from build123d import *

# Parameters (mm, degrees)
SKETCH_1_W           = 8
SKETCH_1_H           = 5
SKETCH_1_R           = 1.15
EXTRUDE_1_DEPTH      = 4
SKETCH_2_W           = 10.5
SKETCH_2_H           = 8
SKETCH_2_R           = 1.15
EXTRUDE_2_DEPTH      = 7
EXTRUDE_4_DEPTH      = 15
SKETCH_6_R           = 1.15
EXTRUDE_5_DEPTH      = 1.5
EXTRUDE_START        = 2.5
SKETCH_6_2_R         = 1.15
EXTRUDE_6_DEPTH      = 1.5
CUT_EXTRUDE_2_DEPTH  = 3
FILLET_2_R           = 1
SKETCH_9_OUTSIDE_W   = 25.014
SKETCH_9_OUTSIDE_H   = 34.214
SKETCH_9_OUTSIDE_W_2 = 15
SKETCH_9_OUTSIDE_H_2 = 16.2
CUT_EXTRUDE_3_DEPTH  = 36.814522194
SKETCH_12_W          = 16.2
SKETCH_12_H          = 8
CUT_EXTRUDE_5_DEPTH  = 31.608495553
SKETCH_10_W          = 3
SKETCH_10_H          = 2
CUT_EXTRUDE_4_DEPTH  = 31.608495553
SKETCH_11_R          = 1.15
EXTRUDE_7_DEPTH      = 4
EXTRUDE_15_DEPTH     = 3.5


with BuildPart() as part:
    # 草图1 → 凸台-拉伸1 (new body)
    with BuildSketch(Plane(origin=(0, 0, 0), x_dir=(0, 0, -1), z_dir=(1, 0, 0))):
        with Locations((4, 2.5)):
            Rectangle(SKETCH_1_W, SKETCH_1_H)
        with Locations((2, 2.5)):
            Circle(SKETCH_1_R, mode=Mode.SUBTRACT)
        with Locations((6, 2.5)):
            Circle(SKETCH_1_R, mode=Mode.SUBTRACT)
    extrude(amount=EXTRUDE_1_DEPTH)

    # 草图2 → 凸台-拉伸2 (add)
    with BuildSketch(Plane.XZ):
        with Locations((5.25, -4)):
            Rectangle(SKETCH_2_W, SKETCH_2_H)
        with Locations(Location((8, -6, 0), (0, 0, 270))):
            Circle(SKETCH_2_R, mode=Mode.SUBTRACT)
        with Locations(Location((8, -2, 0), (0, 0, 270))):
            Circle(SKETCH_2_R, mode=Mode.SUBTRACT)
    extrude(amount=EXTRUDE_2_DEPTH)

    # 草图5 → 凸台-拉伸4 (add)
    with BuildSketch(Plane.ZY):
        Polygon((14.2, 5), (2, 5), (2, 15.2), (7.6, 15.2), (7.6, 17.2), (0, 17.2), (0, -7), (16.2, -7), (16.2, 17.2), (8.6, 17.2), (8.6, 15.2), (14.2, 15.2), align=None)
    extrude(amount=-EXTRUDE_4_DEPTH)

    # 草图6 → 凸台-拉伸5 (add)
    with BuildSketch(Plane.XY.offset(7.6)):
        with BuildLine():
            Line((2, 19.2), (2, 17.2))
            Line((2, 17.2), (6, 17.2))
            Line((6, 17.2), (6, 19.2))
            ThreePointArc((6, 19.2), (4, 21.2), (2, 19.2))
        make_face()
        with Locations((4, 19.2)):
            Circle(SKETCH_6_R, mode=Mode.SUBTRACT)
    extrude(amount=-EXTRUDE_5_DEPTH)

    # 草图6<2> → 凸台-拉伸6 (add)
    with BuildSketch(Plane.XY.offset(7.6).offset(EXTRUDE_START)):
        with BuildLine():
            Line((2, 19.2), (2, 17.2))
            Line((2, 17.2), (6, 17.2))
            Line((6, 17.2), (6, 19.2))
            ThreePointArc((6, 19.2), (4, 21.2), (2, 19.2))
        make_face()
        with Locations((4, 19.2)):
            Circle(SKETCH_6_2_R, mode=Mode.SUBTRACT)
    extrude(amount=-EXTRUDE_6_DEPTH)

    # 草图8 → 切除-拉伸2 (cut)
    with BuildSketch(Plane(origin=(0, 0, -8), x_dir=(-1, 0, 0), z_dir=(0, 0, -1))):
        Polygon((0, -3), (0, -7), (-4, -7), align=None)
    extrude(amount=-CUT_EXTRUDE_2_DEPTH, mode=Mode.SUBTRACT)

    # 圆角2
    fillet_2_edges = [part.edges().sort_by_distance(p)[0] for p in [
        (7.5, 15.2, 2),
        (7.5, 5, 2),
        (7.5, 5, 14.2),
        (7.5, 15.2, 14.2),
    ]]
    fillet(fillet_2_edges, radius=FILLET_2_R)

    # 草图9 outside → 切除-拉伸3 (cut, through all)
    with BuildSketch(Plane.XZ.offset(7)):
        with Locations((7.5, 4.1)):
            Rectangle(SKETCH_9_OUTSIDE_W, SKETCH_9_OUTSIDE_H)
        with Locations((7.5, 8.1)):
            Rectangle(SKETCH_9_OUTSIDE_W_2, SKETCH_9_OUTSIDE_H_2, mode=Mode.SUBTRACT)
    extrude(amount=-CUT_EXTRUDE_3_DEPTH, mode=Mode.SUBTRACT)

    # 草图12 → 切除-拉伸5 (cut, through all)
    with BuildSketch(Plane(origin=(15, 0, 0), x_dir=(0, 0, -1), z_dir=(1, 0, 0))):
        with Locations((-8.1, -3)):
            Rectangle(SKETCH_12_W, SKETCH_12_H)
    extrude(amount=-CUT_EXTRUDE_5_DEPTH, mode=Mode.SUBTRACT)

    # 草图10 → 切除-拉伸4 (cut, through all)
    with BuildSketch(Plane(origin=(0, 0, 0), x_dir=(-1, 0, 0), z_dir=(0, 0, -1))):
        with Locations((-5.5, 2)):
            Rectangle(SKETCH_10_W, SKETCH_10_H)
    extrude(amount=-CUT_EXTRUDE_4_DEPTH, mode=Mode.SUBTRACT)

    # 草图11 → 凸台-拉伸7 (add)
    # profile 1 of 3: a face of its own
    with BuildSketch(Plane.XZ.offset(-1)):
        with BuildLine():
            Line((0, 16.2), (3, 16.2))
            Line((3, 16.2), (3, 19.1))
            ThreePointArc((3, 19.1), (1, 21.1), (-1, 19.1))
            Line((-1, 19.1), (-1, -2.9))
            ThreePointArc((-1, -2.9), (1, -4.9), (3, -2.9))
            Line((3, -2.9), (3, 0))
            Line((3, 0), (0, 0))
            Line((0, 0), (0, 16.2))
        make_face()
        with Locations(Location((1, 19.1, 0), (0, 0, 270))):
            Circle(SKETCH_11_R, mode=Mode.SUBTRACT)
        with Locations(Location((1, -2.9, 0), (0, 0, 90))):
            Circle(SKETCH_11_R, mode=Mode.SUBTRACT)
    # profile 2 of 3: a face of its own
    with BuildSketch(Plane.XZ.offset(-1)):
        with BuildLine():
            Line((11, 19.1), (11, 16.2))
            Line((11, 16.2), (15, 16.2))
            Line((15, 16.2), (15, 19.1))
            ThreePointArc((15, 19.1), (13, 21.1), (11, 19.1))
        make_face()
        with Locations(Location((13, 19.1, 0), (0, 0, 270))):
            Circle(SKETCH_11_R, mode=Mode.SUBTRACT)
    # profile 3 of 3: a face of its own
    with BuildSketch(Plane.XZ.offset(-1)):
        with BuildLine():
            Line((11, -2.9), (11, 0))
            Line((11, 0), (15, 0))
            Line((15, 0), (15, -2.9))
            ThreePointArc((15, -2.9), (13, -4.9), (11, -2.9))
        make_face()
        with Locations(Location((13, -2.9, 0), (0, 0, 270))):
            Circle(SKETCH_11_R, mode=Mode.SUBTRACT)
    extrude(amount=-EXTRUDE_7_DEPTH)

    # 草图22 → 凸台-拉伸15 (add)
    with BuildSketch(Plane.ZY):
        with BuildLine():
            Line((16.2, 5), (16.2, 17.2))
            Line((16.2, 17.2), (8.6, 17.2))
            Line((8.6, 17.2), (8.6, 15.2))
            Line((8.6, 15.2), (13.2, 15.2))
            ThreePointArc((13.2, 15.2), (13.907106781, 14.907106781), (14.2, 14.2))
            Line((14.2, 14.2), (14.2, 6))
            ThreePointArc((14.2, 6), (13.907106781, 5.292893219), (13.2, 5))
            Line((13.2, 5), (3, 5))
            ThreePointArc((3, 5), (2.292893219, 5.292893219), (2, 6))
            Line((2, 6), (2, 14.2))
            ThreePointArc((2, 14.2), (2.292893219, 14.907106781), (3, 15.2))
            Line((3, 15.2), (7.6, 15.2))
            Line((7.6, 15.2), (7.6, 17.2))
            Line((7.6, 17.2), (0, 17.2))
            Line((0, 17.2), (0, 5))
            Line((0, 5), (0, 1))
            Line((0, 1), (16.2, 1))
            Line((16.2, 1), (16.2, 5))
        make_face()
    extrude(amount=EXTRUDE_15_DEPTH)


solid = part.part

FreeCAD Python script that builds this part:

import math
import FreeCAD as App
import Part
import Sketcher
from FreeCAD import Vector
Q = App.Units.Quantity


def edges_at(feature, points):
    """Names of the edges that pass closest to the given points."""
    edges = feature.Shape.Edges
    near = lambda p: min(range(len(edges)), key=lambda i: edges[i].distToShape(Part.Vertex(*p))[0])
    return sorted({f"Edge{near(p) + 1}" for p in points})

doc = App.newDocument("Part")
params = doc.addObject("Spreadsheet::Sheet", "Params")
for row, (alias, value) in enumerate([
    ("sketch1_diameter", "2.3 mm"),
    ("sketch1_width", "5 mm"),
    ("sketch1_height", "8 mm"),
    ("pad1_length", "4 mm"),
    ("sketch2_diameter", "2.3 mm"),
    ("sketch2_height", "8 mm"),
    ("sketch2_width", "10.5 mm"),
    ("pad2_length", "7 mm"),
    ("sketch3_width", "2 mm"),
    ("sketch3_width2", "10.2 mm"),
    ("sketch3_width3", "24.2 mm"),
    ("sketch3_height", "12.2 mm"),
    ("sketch3_height2", "5.6 mm"),
    ("pad3_length", "15 mm"),
    ("sketch4_radius", "2 mm"),
    ("sketch4_diameter", "2.3 mm"),
    ("sketch4_height", "2 mm"),
    ("pad4_length", "1.5 mm"),
    ("sketch5_radius", "2 mm"),
    ("sketch5_diameter", "2.3 mm"),
    ("sketch5_height", "2 mm"),
    ("pad5_length", "1.5 mm"),
    ("sketch6_width", "4 mm"),
    ("pocket1_length", "3 mm"),
    ("fillet_radius", "1 mm"),
    ("sketch7_width", "15 mm"),
    ("sketch7_height", "16.2 mm"),
    ("sketch8_width", "8 mm"),
    ("sketch8_height", "16.2 mm"),
    ("sketch9_width", "3 mm"),
    ("sketch9_height", "2 mm"),
    ("sketch10_radius", "2 mm"),
    ("sketch10_diameter", "2.3 mm"),
    ("sketch10_width", "3 mm"),
    ("sketch10_height", "22 mm"),
    ("sketch10_height2", "2.9 mm"),
    ("pad6_length", "4 mm"),
    ("sketch11_radius", "1 mm"),
    ("sketch11_width", "2 mm"),
    ("sketch11_width2", "8.2 mm"),
    ("sketch11_width3", "16.2 mm"),
    ("sketch11_height", "7.6 mm"),
    ("pad7_length", "3.5 mm"),
], start=1):
    params.set(f"A{row}", alias)
    params.set(f"B{row}", "=" + value)
    params.setAlias(f"B{row}", alias)

body = doc.addObject("PartDesign::Body", "Body")

# Sketch on YZ plane
sketch1 = doc.addObject("Sketcher::SketchObject", "Sketch")
body.addObject(sketch1)
sketch1.AttachmentSupport = (doc.YZ_Plane, [""])
sketch1.MapMode = "FlatFace"
sketch1.addGeometry(Part.LineSegment(Vector(5, 0, 0), Vector(0, 0, 0)), False)
sketch1.addGeometry(Part.LineSegment(Vector(0, 0, 0), Vector(0, -8, 0)), False)
sketch1.addGeometry(Part.LineSegment(Vector(0, -8, 0), Vector(5, -8, 0)), False)
sketch1.addGeometry(Part.LineSegment(Vector(5, -8, 0), Vector(5, 0, 0)), False)
sketch1.addGeometry(Part.Circle(Vector(2.5, -2, 0), Vector(0, 0, 1), 1.1), False)
sketch1.addGeometry(Part.Circle(Vector(2.5, -6, 0), Vector(0, 0, 1), 1.1), False)
sketch1.addConstraint(Sketcher.Constraint("Coincident", 0, 2, 1, 1))
sketch1.addConstraint(Sketcher.Constraint("Coincident", 1, 2, 2, 1))
sketch1.addConstraint(Sketcher.Constraint("Coincident", 2, 2, 3, 1))
sketch1.addConstraint(Sketcher.Constraint("Coincident", 3, 2, 0, 1))
sketch1.addConstraint(Sketcher.Constraint("Horizontal", 0))
sketch1.addConstraint(Sketcher.Constraint("Vertical", 1))
sketch1.addConstraint(Sketcher.Constraint("Horizontal", 2))
sketch1.addConstraint(Sketcher.Constraint("Vertical", 3))
sketch1.addConstraint(Sketcher.Constraint("Coincident", 0, 2, -1, 1))
sketch1.addConstraint(Sketcher.Constraint("Equal", 4, 5))
sketch1.addConstraint(Sketcher.Constraint("Vertical", 4, 3, 5, 3))
sketch1.addConstraint(Sketcher.Constraint("Diameter", 4, Q("2.3 mm")))
sketch1.addConstraint(Sketcher.Constraint("DistanceX", 0, 2, 0, 1, Q("5 mm")))
sketch1.addConstraint(Sketcher.Constraint("DistanceY", 1, 2, 1, 1, Q("8 mm")))
sketch1.addConstraint(Sketcher.Constraint("DistanceY", 4, 3, -1, 1, Q("2 mm")))
sketch1.addConstraint(Sketcher.Constraint("DistanceY", 5, 3, -1, 1, Q("6 mm")))
sketch1.addConstraint(Sketcher.Constraint("DistanceX", -1, 1, 4, 3, Q("2.5 mm")))
sketch1.setExpression("Constraints[11]", "Params.sketch1_diameter")
sketch1.setExpression("Constraints[12]", "Params.sketch1_width")
sketch1.setExpression("Constraints[13]", "Params.sketch1_height")
pad1 = doc.addObject("PartDesign::Pad", "Pad")
body.addObject(pad1)
pad1.Profile = sketch1
pad1.setExpression("Length", "Params.pad1_length")

# Sketch on XZ plane
sketch2 = doc.addObject("Sketcher::SketchObject", "Sketch001")
body.addObject(sketch2)
sketch2.AttachmentSupport = (doc.XZ_Plane, [""])
sketch2.MapMode = "FlatFace"
sketch2.addGeometry(Part.LineSegment(Vector(0, 0, 0), Vector(0, -8, 0)), False)
sketch2.addGeometry(Part.LineSegment(Vector(0, -8, 0), Vector(10.5, -8, 0)), False)
sketch2.addGeometry(Part.LineSegment(Vector(10.5, -8, 0), Vector(10.5, 0, 0)), False)
sketch2.addGeometry(Part.LineSegment(Vector(10.5, 0, 0), Vector(0, 0, 0)), False)
sketch2.addGeometry(Part.Circle(Vector(8, -6, 0), Vector(0, 0, 1), 1.1), False)
sketch2.addGeometry(Part.Circle(Vector(8, -2, 0), Vector(0, 0, 1), 1.1), False)
sketch2.addConstraint(Sketcher.Constraint("Coincident", 0, 2, 1, 1))
sketch2.addConstraint(Sketcher.Constraint("Coincident", 1, 2, 2, 1))
sketch2.addConstraint(Sketcher.Constraint("Coincident", 2, 2, 3, 1))
sketch2.addConstraint(Sketcher.Constraint("Coincident", 3, 2, 0, 1))
sketch2.addConstraint(Sketcher.Constraint("Vertical", 0))
sketch2.addConstraint(Sketcher.Constraint("Horizontal", 1))
sketch2.addConstraint(Sketcher.Constraint("Vertical", 2))
sketch2.addConstraint(Sketcher.Constraint("Horizontal", 3))
sketch2.addConstraint(Sketcher.Constraint("Coincident", 3, 2, -1, 1))
sketch2.addConstraint(Sketcher.Constraint("Equal", 4, 5))
sketch2.addConstraint(Sketcher.Constraint("Vertical", 4, 3, 5, 3))
sketch2.addConstraint(Sketcher.Constraint("Diameter", 4, Q("2.3 mm")))
sketch2.addConstraint(Sketcher.Constraint("DistanceY", 0, 2, 0, 1, Q("8 mm")))
sketch2.addConstraint(Sketcher.Constraint("DistanceX", 1, 1, 1, 2, Q("10.5 mm")))
sketch2.addConstraint(Sketcher.Constraint("DistanceX", -1, 1, 4, 3, Q("8 mm")))
sketch2.addConstraint(Sketcher.Constraint("DistanceY", 4, 3, -1, 1, Q("6 mm")))
sketch2.addConstraint(Sketcher.Constraint("DistanceY", 5, 3, -1, 1, Q("2 mm")))
sketch2.setExpression("Constraints[11]", "Params.sketch2_diameter")
sketch2.setExpression("Constraints[12]", "Params.sketch2_height")
sketch2.setExpression("Constraints[13]", "Params.sketch2_width")
pad2 = doc.addObject("PartDesign::Pad", "Pad001")
body.addObject(pad2)
pad2.Profile = sketch2
pad2.setExpression("Length", "Params.pad2_length")

# Sketch on YZ plane
sketch3 = doc.addObject("Sketcher::SketchObject", "Sketch002")
body.addObject(sketch3)
sketch3.AttachmentSupport = (doc.YZ_Plane, [""])
sketch3.MapMode = "FlatFace"
sketch3.addGeometry(Part.LineSegment(Vector(5, 14.2, 0), Vector(5, 2, 0)), False)
sketch3.addGeometry(Part.LineSegment(Vector(5, 2, 0), Vector(15.2, 2, 0)), False)
sketch3.addGeometry(Part.LineSegment(Vector(15.2, 2, 0), Vector(15.2, 7.6, 0)), False)
sketch3.addGeometry(Part.LineSegment(Vector(15.2, 7.6, 0), Vector(17.2, 7.6, 0)), False)
sketch3.addGeometry(Part.LineSegment(Vector(17.2, 7.6, 0), Vector(17.2, 0, 0)), False)
sketch3.addGeometry(Part.LineSegment(Vector(17.2, 0, 0), Vector(-7, 0, 0)), False)
sketch3.addGeometry(Part.LineSegment(Vector(-7, 0, 0), Vector(-7, 16.2, 0)), False)
sketch3.addGeometry(Part.LineSegment(Vector(-7, 16.2, 0), Vector(17.2, 16.2, 0)), False)
sketch3.addGeometry(Part.LineSegment(Vector(17.2, 16.2, 0), Vector(17.2, 8.6, 0)), False)
sketch3.addGeometry(Part.LineSegment(Vector(17.2, 8.6, 0), Vector(15.2, 8.6, 0)), False)
sketch3.addGeometry(Part.LineSegment(Vector(15.2, 8.6, 0), Vector(15.2, 14.2, 0)), False)
sketch3.addGeometry(Part.LineSegment(Vector(15.2, 14.2, 0), Vector(5, 14.2, 0)), False)
sketch3.addConstraint(Sketcher.Constraint("Coincident", 0, 2, 1, 1))
sketch3.addConstraint(Sketcher.Constraint("Coincident", 1, 2, 2, 1))
sketch3.addConstraint(Sketcher.Constraint("Coincident", 2, 2, 3, 1))
sketch3.addConstraint(Sketcher.Constraint("Coincident", 3, 2, 4, 1))
sketch3.addConstraint(Sketcher.Constraint("Coincident", 4, 2, 5, 1))
sketch3.addConstraint(Sketcher.Constraint("Coincident", 5, 2, 6, 1))
sketch3.addConstraint(Sketcher.Constraint("Coincident", 6, 2, 7, 1))
sketch3.addConstraint(Sketcher.Constraint("Coincident", 7, 2, 8, 1))
sketch3.addConstraint(Sketcher.Constraint("Coincident", 8, 2, 9, 1))
sketch3.addConstraint(Sketcher.Constraint("Coincident", 9, 2, 10, 1))
sketch3.addConstraint(Sketcher.Constraint("Coincident", 10, 2, 11, 1))
sketch3.addConstraint(Sketcher.Constraint("Coincident", 11, 2, 0, 1))
sketch3.addConstraint(Sketcher.Constraint("Vertical", 0))
sketch3.addConstraint(Sketcher.Constraint("Horizontal", 1))
sketch3.addConstraint(Sketcher.Constraint("Vertical", 2))
sketch3.addConstraint(Sketcher.Constraint("Horizontal", 3))
sketch3.addConstraint(Sketcher.Constraint("Vertical", 4))
sketch3.addConstraint(Sketcher.Constraint("Horizontal", 5))
sketch3.addConstraint(Sketcher.Constraint("Vertical", 6))
sketch3.addConstraint(Sketcher.Constraint("Horizontal", 7))
sketch3.addConstraint(Sketcher.Constraint("Vertical", 8))
sketch3.addConstraint(Sketcher.Constraint("Horizontal", 9))
sketch3.addConstraint(Sketcher.Constraint("Vertical", 10))
sketch3.addConstraint(Sketcher.Constraint("Horizontal", 11))
sketch3.addConstraint(Sketcher.Constraint("PointOnObject", 4, 2, -1))
sketch3.addConstraint(Sketcher.Constraint("Vertical", 4, 2, 7, 2))
sketch3.addConstraint(Sketcher.Constraint("Vertical", 2, 2, 9, 2))
sketch3.addConstraint(Sketcher.Constraint("Equal", 4, 8))
sketch3.addConstraint(Sketcher.Constraint("Equal", 2, 10))
sketch3.addConstraint(Sketcher.Constraint("DistanceX", 3, 1, 3, 2, Q("2 mm")))
sketch3.addConstraint(Sketcher.Constraint("DistanceX", 1, 1, 1, 2, Q("10.2 mm")))
sketch3.addConstraint(Sketcher.Constraint("DistanceX", 5, 2, 5, 1, Q("24.2 mm")))
sketch3.addConstraint(Sketcher.Constraint("DistanceY", 0, 2, 0, 1, Q("12.2 mm")))
sketch3.addConstraint(Sketcher.Constraint("DistanceY", 2, 1, 2, 2, Q("5.6 mm")))
sketch3.addConstraint(Sketcher.Constraint("DistanceY", 4, 2, 4, 1, Q("7.6 mm")))
sketch3.addConstraint(Sketcher.Constraint("DistanceX", -1, 1, 0, 2, Q("5 mm")))
sketch3.setExpression("Constraints[29]", "Params.sketch3_width")
sketch3.setExpression("Constraints[30]", "Params.sketch3_width2")
sketch3.setExpression("Constraints[31]", "Params.sketch3_width3")
sketch3.setExpression("Constraints[32]", "Params.sketch3_height")
sketch3.setExpression("Constraints[33]", "Params.sketch3_height2")
pad3 = doc.addObject("PartDesign::Pad", "Pad002")
body.addObject(pad3)
pad3.Profile = sketch3
pad3.setExpression("Length", "Params.pad3_length")

# Sketch on XY plane
sketch4 = doc.addObject("Sketcher::SketchObject", "Sketch003")
body.addObject(sketch4)
sketch4.AttachmentSupport = (doc.XY_Plane, [""])
sketch4.MapMode = "FlatFace"
sketch4.AttachmentOffset = App.Placement(Vector(0, 0, 7.6), App.Rotation())
sketch4.addGeometry(Part.LineSegment(Vector(2, 19.2, 0), Vector(2, 17.2, 0)), False)
sketch4.addGeometry(Part.LineSegment(Vector(2, 17.2, 0), Vector(6, 17.2, 0)), False)
sketch4.addGeometry(Part.LineSegment(Vector(6, 17.2, 0), Vector(6, 19.2, 0)), False)
sketch4.addGeometry(Part.ArcOfCircle(Part.Circle(Vector(4, 19.2, 0), Vector(0, 0, 1), 2), math.radians(0), math.radians(180)), False)
sketch4.addGeometry(Part.Circle(Vector(4, 19.2, 0), Vector(0, 0, 1), 1.1), False)
sketch4.addConstraint(Sketcher.Constraint("Coincident", 0, 2, 1, 1))
sketch4.addConstraint(Sketcher.Constraint("Coincident", 1, 2, 2, 1))
sketch4.addConstraint(Sketcher.Constraint("Tangent", 2, 2, 3, 1))
sketch4.addConstraint(Sketcher.Constraint("Tangent", 3, 2, 0, 1))
sketch4.addConstraint(Sketcher.Constraint("Vertical", 0))
sketch4.addConstraint(Sketcher.Constraint("Horizontal", 1))
sketch4.addConstraint(Sketcher.Constraint("Vertical", 2))
sketch4.addConstraint(Sketcher.Constraint("Coincident", 4, 3, 3, 3))
sketch4.addConstraint(Sketcher.Constraint("Radius", 3, Q("2 mm")))
sketch4.addConstraint(Sketcher.Constraint("Diameter", 4, Q("2.3 mm")))
sketch4.addConstraint(Sketcher.Constraint("DistanceY", 0, 2, 0, 1, Q("2 mm")))
sketch4.addConstraint(Sketcher.Constraint("DistanceX", -1, 1, 3, 3, Q("4 mm")))
sketch4.addConstraint(Sketcher.Constraint("DistanceY", -1, 1, 3, 3, Q("19.2 mm")))
sketch4.setExpression("Constraints[8]", "Params.sketch4_radius")
sketch4.setExpression("Constraints[9]", "Params.sketch4_diameter")
sketch4.setExpression("Constraints[10]", "Params.sketch4_height")
pad4 = doc.addObject("PartDesign::Pad", "Pad003")
body.addObject(pad4)
pad4.Profile = sketch4
pad4.setExpression("Length", "Params.pad4_length")
pad4.Reversed = True

# Sketch on XY plane
sketch5 = doc.addObject("Sketcher::SketchObject", "Sketch004")
body.addObject(sketch5)
sketch5.AttachmentSupport = (doc.XY_Plane, [""])
sketch5.MapMode = "FlatFace"
sketch5.AttachmentOffset = App.Placement(Vector(0, 0, 10.1), App.Rotation())
sketch5.addGeometry(Part.LineSegment(Vector(2, 19.2, 0), Vector(2, 17.2, 0)), False)
sketch5.addGeometry(Part.LineSegment(Vector(2, 17.2, 0), Vector(6, 17.2, 0)), False)
sketch5.addGeometry(Part.LineSegment(Vector(6, 17.2, 0), Vector(6, 19.2, 0)), False)
sketch5.addGeometry(Part.ArcOfCircle(Part.Circle(Vector(4, 19.2, 0), Vector(0, 0, 1), 2), math.radians(0), math.radians(180)), False)
sketch5.addGeometry(Part.Circle(Vector(4, 19.2, 0), Vector(0, 0, 1), 1.1), False)
sketch5.addConstraint(Sketcher.Constraint("Coincident", 0, 2, 1, 1))
sketch5.addConstraint(Sketcher.Constraint("Coincident", 1, 2, 2, 1))
sketch5.addConstraint(Sketcher.Constraint("Tangent", 2, 2, 3, 1))
sketch5.addConstraint(Sketcher.Constraint("Tangent", 3, 2, 0, 1))
sketch5.addConstraint(Sketcher.Constraint("Vertical", 0))
sketch5.addConstraint(Sketcher.Constraint("Horizontal", 1))
sketch5.addConstraint(Sketcher.Constraint("Vertical", 2))
sketch5.addConstraint(Sketcher.Constraint("Coincident", 4, 3, 3, 3))
sketch5.addConstraint(Sketcher.Constraint("Radius", 3, Q("2 mm")))
sketch5.addConstraint(Sketcher.Constraint("Diameter", 4, Q("2.3 mm")))
sketch5.addConstraint(Sketcher.Constraint("DistanceY", 0, 2, 0, 1, Q("2 mm")))
sketch5.addConstraint(Sketcher.Constraint("DistanceX", -1, 1, 3, 3, Q("4 mm")))
sketch5.addConstraint(Sketcher.Constraint("DistanceY", -1, 1, 3, 3, Q("19.2 mm")))
sketch5.setExpression("Constraints[8]", "Params.sketch5_radius")
sketch5.setExpression("Constraints[9]", "Params.sketch5_diameter")
sketch5.setExpression("Constraints[10]", "Params.sketch5_height")
pad5 = doc.addObject("PartDesign::Pad", "Pad004")
body.addObject(pad5)
pad5.Profile = sketch5
pad5.setExpression("Length", "Params.pad5_length")
pad5.Reversed = True

# Sketch on XY plane
sketch6 = doc.addObject("Sketcher::SketchObject", "Sketch005")
body.addObject(sketch6)
sketch6.AttachmentSupport = (doc.XY_Plane, [""])
sketch6.MapMode = "FlatFace"
sketch6.AttachmentOffset = App.Placement(Vector(0, 0, -8), App.Rotation())
sketch6.addGeometry(Part.LineSegment(Vector(0, -7, 0), Vector(0, -3, 0)), False)
sketch6.addGeometry(Part.LineSegment(Vector(0, -3, 0), Vector(4, -7, 0)), False)
sketch6.addGeometry(Part.LineSegment(Vector(4, -7, 0), Vector(0, -7, 0)), False)
sketch6.addConstraint(Sketcher.Constraint("Coincident", 0, 2, 1, 1))
sketch6.addConstraint(Sketcher.Constraint("Coincident", 1, 2, 2, 1))
sketch6.addConstraint(Sketcher.Constraint("Coincident", 2, 2, 0, 1))
sketch6.addConstraint(Sketcher.Constraint("Vertical", 0))
sketch6.addConstraint(Sketcher.Constraint("Horizontal", 2))
sketch6.addConstraint(Sketcher.Constraint("PointOnObject", 0, 2, -2))
sketch6.addConstraint(Sketcher.Constraint("Equal", 2, 0))
sketch6.addConstraint(Sketcher.Constraint("DistanceX", 2, 2, 2, 1, Q("4 mm")))
sketch6.addConstraint(Sketcher.Constraint("DistanceY", 0, 2, -1, 1, Q("3 mm")))
sketch6.setExpression("Constraints[7]", "Params.sketch6_width")
pocket1 = doc.addObject("PartDesign::Pocket", "Pocket")
body.addObject(pocket1)
pocket1.Profile = sketch6
pocket1.setExpression("Length", "Params.pocket1_length")
pocket1.Reversed = True
doc.recompute()

fillet = doc.addObject("PartDesign::Fillet", "Fillet")
body.addObject(fillet)
fillet.Base = (pocket1, edges_at(pocket1, [
    (7.5, 15.2, 2),
    (7.5, 5, 2),
    (7.5, 5, 14.2),
    (7.5, 15.2, 14.2),
]))
fillet.setExpression("Radius", "Params.fillet_radius")

# Sketch on XZ plane
sketch7 = doc.addObject("Sketcher::SketchObject", "Sketch006")
body.addObject(sketch7)
sketch7.AttachmentSupport = (doc.XZ_Plane, [""])
sketch7.MapMode = "FlatFace"
sketch7.AttachmentOffset = App.Placement(Vector(0, 0, 7), App.Rotation())
sketch7.addGeometry(Part.LineSegment(Vector(-5, 21, 0), Vector(-5, -13, 0)), False)
sketch7.addGeometry(Part.LineSegment(Vector(-5, -13, 0), Vector(20, -13, 0)), False)
sketch7.addGeometry(Part.LineSegment(Vector(20, -13, 0), Vector(20, 21, 0)), False)
sketch7.addGeometry(Part.LineSegment(Vector(20, 21, 0), Vector(-5, 21, 0)), False)
sketch7.addGeometry(Part.LineSegment(Vector(15, 0, 0), Vector(0, 0, 0)), False)
sketch7.addGeometry(Part.LineSegment(Vector(0, 0, 0), Vector(0, 16, 0)), False)
sketch7.addGeometry(Part.LineSegment(Vector(0, 16, 0), Vector(15, 16, 0)), False)
sketch7.addGeometry(Part.LineSegment(Vector(15, 16, 0), Vector(15, 0, 0)), False)
sketch7.addConstraint(Sketcher.Constraint("Coincident", 0, 2, 1, 1))
sketch7.addConstraint(Sketcher.Constraint("Coincident", 1, 2, 2, 1))
sketch7.addConstraint(Sketcher.Constraint("Coincident", 2, 2, 3, 1))
sketch7.addConstraint(Sketcher.Constraint("Coincident", 3, 2, 0, 1))
sketch7.addConstraint(Sketcher.Constraint("Coincident", 4, 2, 5, 1))
sketch7.addConstraint(Sketcher.Constraint("Coincident", 5, 2, 6, 1))
sketch7.addConstraint(Sketcher.Constraint("Coincident", 6, 2, 7, 1))
sketch7.addConstraint(Sketcher.Constraint("Coincident", 7, 2, 4, 1))
sketch7.addConstraint(Sketcher.Constraint("Vertical", 0))
sketch7.addConstraint(Sketcher.Constraint("Horizontal", 1))
sketch7.addConstraint(Sketcher.Constraint("Vertical", 2))
sketch7.addConstraint(Sketcher.Constraint("Horizontal", 3))
sketch7.addConstraint(Sketcher.Constraint("Horizontal", 4))
sketch7.addConstraint(Sketcher.Constraint("Vertical", 5))
sketch7.addConstraint(Sketcher.Constraint("Horizontal", 6))
sketch7.addConstraint(Sketcher.Constraint("Vertical", 7))
sketch7.addConstraint(Sketcher.Constraint("Coincident", 4, 2, -1, 1))
sketch7.addConstraint(Sketcher.Constraint("DistanceX", 4, 2, 4, 1, Q("15 mm")))
sketch7.addConstraint(Sketcher.Constraint("DistanceY", 5, 1, 5, 2, Q("16.2 mm")))
sketch7.addConstraint(Sketcher.Constraint("DistanceX", 1, 1, 1, 2, Q("25.014 mm")))
sketch7.addConstraint(Sketcher.Constraint("DistanceY", 0, 2, 0, 1, Q("34.214 mm")))
sketch7.addConstraint(Sketcher.Constraint("DistanceX", 0, 2, -1, 1, Q("5.007 mm")))
sketch7.addConstraint(Sketcher.Constraint("DistanceY", 0, 2, -1, 1, Q("13.007 mm")))
sketch7.setExpression("Constraints[17]", "Params.sketch7_width")
sketch7.setExpression("Constraints[18]", "Params.sketch7_height")
pocket2 = doc.addObject("PartDesign::Pocket", "Pocket001")
body.addObject(pocket2)
pocket2.Profile = sketch7
pocket2.Type = "ThroughAll"

# Sketch on YZ plane
sketch8 = doc.addObject("Sketcher::SketchObject", "Sketch007")
body.addObject(sketch8)
sketch8.AttachmentSupport = (doc.YZ_Plane, [""])
sketch8.MapMode = "FlatFace"
sketch8.AttachmentOffset = App.Placement(Vector(0, 0, 15), App.Rotation())
sketch8.addGeometry(Part.LineSegment(Vector(1, 16, 0), Vector(-7, 16, 0)), False)
sketch8.addGeometry(Part.LineSegment(Vector(-7, 16, 0), Vector(-7, 0, 0)), False)
sketch8.addGeometry(Part.LineSegment(Vector(-7, 0, 0), Vector(1, 0, 0)), False)
sketch8.addGeometry(Part.LineSegment(Vector(1, 0, 0), Vector(1, 16, 0)), False)
sketch8.addConstraint(Sketcher.Constraint("Coincident", 0, 2, 1, 1))
sketch8.addConstraint(Sketcher.Constraint("Coincident", 1, 2, 2, 1))
sketch8.addConstraint(Sketcher.Constraint("Coincident", 2, 2, 3, 1))
sketch8.addConstraint(Sketcher.Constraint("Coincident", 3, 2, 0, 1))
sketch8.addConstraint(Sketcher.Constraint("Horizontal", 0))
sketch8.addConstraint(Sketcher.Constraint("Vertical", 1))
sketch8.addConstraint(Sketcher.Constraint("Horizontal", 2))
sketch8.addConstraint(Sketcher.Constraint("Vertical", 3))
sketch8.addConstraint(Sketcher.Constraint("PointOnObject", 1, 2, -1))
sketch8.addConstraint(Sketcher.Constraint("DistanceX", 0, 2, 0, 1, Q("8 mm")))
sketch8.addConstraint(Sketcher.Constraint("DistanceY", 1, 2, 1, 1, Q("16.2 mm")))
sketch8.addConstraint(Sketcher.Constraint("DistanceX", 0, 2, -1, 1, Q("7 mm")))
sketch8.setExpression("Constraints[9]", "Params.sketch8_width")
sketch8.setExpression("Constraints[10]", "Params.sketch8_height")
pocket3 = doc.addObject("PartDesign::Pocket", "Pocket002")
body.addObject(pocket3)
pocket3.Profile = sketch8
pocket3.Type = "ThroughAll"

# Sketch on XY plane
sketch9 = doc.addObject("Sketcher::SketchObject", "Sketch008")
body.addObject(sketch9)
sketch9.AttachmentSupport = (doc.XY_Plane, [""])
sketch9.MapMode = "FlatFace"
sketch9.addGeometry(Part.LineSegment(Vector(7, 3, 0), Vector(7, 1, 0)), False)
sketch9.addGeometry(Part.LineSegment(Vector(7, 1, 0), Vector(4, 1, 0)), False)
sketch9.addGeometry(Part.LineSegment(Vector(4, 1, 0), Vector(4, 3, 0)), False)
sketch9.addGeometry(Part.LineSegment(Vector(4, 3, 0), Vector(7, 3, 0)), False)
sketch9.addConstraint(Sketcher.Constraint("Coincident", 0, 2, 1, 1))
sketch9.addConstraint(Sketcher.Constraint("Coincident", 1, 2, 2, 1))
sketch9.addConstraint(Sketcher.Constraint("Coincident", 2, 2, 3, 1))
sketch9.addConstraint(Sketcher.Constraint("Coincident", 3, 2, 0, 1))
sketch9.addConstraint(Sketcher.Constraint("Vertical", 0))
sketch9.addConstraint(Sketcher.Constraint("Horizontal", 1))
sketch9.addConstraint(Sketcher.Constraint("Vertical", 2))
sketch9.addConstraint(Sketcher.Constraint("Horizontal", 3))
sketch9.addConstraint(Sketcher.Constraint("DistanceX", 1, 2, 1, 1, Q("3 mm")))
sketch9.addConstraint(Sketcher.Constraint("DistanceY", 0, 2, 0, 1, Q("2 mm")))
sketch9.addConstraint(Sketcher.Constraint("DistanceX", -1, 1, 0, 2, Q("7 mm")))
sketch9.addConstraint(Sketcher.Constraint("DistanceY", -1, 1, 0, 2, Q("1 mm")))
sketch9.setExpression("Constraints[8]", "Params.sketch9_width")
sketch9.setExpression("Constraints[9]", "Params.sketch9_height")
pocket4 = doc.addObject("PartDesign::Pocket", "Pocket003")
body.addObject(pocket4)
pocket4.Profile = sketch9
pocket4.Type = "ThroughAll"
pocket4.Reversed = True

# Sketch on XZ plane
sketch10 = doc.addObject("Sketcher::SketchObject", "Sketch009")
body.addObject(sketch10)
sketch10.AttachmentSupport = (doc.XZ_Plane, [""])
sketch10.MapMode = "FlatFace"
sketch10.AttachmentOffset = App.Placement(Vector(0, 0, -1), App.Rotation())
sketch10.addGeometry(Part.LineSegment(Vector(0, 16.2, 0), Vector(3, 16.2, 0)), False)
sketch10.addGeometry(Part.LineSegment(Vector(3, 16.2, 0), Vector(3, 19.1, 0)), False)
sketch10.addGeometry(Part.ArcOfCircle(Part.Circle(Vector(1, 19.1, 0), Vector(0, 0, 1), 2), math.radians(0), math.radians(180)), False)
sketch10.addGeometry(Part.LineSegment(Vector(-1, 19.1, 0), Vector(-1, -2.9, 0)), False)
sketch10.addGeometry(Part.ArcOfCircle(Part.Circle(Vector(1, -2.9, 0), Vector(0, 0, 1), 2), math.radians(180), math.radians(360)), False)
sketch10.addGeometry(Part.LineSegment(Vector(3, -2.9, 0), Vector(3, 0, 0)), False)
sketch10.addGeometry(Part.LineSegment(Vector(3, 0, 0), Vector(0, 0, 0)), False)
sketch10.addGeometry(Part.LineSegment(Vector(0, 0, 0), Vector(0, 16.2, 0)), False)
sketch10.addGeometry(Part.Circle(Vector(1, -2.9, 0), Vector(0, 0, 1), 1.1), False)
sketch10.addGeometry(Part.Circle(Vector(1, 19.1, 0), Vector(0, 0, 1), 1.1), False)
sketch10.addGeometry(Part.LineSegment(Vector(11, 19.1, 0), Vector(11, 16.2, 0)), False)
sketch10.addGeometry(Part.LineSegment(Vector(11, 16.2, 0), Vector(15, 16.2, 0)), False)
sketch10.addGeometry(Part.LineSegment(Vector(15, 16.2, 0), Vector(15, 19.1, 0)), False)
sketch10.addGeometry(Part.ArcOfCircle(Part.Circle(Vector(13, 19.1, 0), Vector(0, 0, 1), 2), math.radians(0), math.radians(180)), False)
sketch10.addGeometry(Part.Circle(Vector(13, 19.1, 0), Vector(0, 0, 1), 1.1), False)
sketch10.addGeometry(Part.LineSegment(Vector(11, 0, 0), Vector(11, -2.9, 0)), False)
sketch10.addGeometry(Part.ArcOfCircle(Part.Circle(Vector(13, -2.9, 0), Vector(0, 0, 1), 2), math.radians(180), math.radians(360)), False)
sketch10.addGeometry(Part.LineSegment(Vector(15, -2.9, 0), Vector(15, 0, 0)), False)
sketch10.addGeometry(Part.LineSegment(Vector(15, 0, 0), Vector(11, 0, 0)), False)
sketch10.addGeometry(Part.Circle(Vector(13, -2.9, 0), Vector(0, 0, 1), 1.1), False)
sketch10.addConstraint(Sketcher.Constraint("Coincident", 0, 2, 1, 1))
sketch10.addConstraint(Sketcher.Constraint("Tangent", 1, 2, 2, 1))
sketch10.addConstraint(Sketcher.Constraint("Tangent", 2, 2, 3, 1))
sketch10.addConstraint(Sketcher.Constraint("Tangent", 3, 2, 4, 1))
sketch10.addConstraint(Sketcher.Constraint("Tangent", 4, 2, 5, 1))
sketch10.addConstraint(Sketcher.Constraint("Coincident", 5, 2, 6, 1))
sketch10.addConstraint(Sketcher.Constraint("Coincident", 6, 2, 7, 1))
sketch10.addConstraint(Sketcher.Constraint("Coincident", 7, 2, 0, 1))
sketch10.addConstraint(Sketcher.Constraint("Coincident", 10, 2, 11, 1))
sketch10.addConstraint(Sketcher.Constraint("Coincident", 11, 2, 12, 1))
sketch10.addConstraint(Sketcher.Constraint("Tangent", 12, 2, 13, 1))
sketch10.addConstraint(Sketcher.Constraint("Tangent", 13, 2, 10, 1))
sketch10.addConstraint(Sketcher.Constraint("Tangent", 15, 2, 16, 1))
sketch10.addConstraint(Sketcher.Constraint("Tangent", 16, 2, 17, 1))
sketch10.addConstraint(Sketcher.Constraint("Coincident", 17, 2, 18, 1))
sketch10.addConstraint(Sketcher.Constraint("Coincident", 18, 2, 15, 1))
sketch10.addConstraint(Sketcher.Constraint("Horizontal", 0))
sketch10.addConstraint(Sketcher.Constraint("Vertical", 1))
sketch10.addConstraint(Sketcher.Constraint("Vertical", 3))
sketch10.addConstraint(Sketcher.Constraint("Vertical", 5))
sketch10.addConstraint(Sketcher.Constraint("Horizontal", 6))
sketch10.addConstraint(Sketcher.Constraint("Vertical", 7))
sketch10.addConstraint(Sketcher.Constraint("Vertical", 10))
sketch10.addConstraint(Sketcher.Constraint("Horizontal", 11))
sketch10.addConstraint(Sketcher.Constraint("Vertical", 12))
sketch10.addConstraint(Sketcher.Constraint("Vertical", 15))
sketch10.addConstraint(Sketcher.Constraint("Vertical", 17))
sketch10.addConstraint(Sketcher.Constraint("Horizontal", 18))
sketch10.addConstraint(Sketcher.Constraint("Coincident", 6, 2, -1, 1))
sketch10.addConstraint(Sketcher.Constraint("Coincident", 8, 3, 4, 3))
sketch10.addConstraint(Sketcher.Constraint("Coincident", 9, 3, 2, 3))
sketch10.addConstraint(Sketcher.Constraint("Coincident", 14, 3, 13, 3))
sketch10.addConstraint(Sketcher.Constraint("Coincident", 19, 3, 16, 3))
sketch10.addConstraint(Sketcher.Constraint("Equal", 2, 4))
sketch10.addConstraint(Sketcher.Constraint("Equal", 8, 9))
sketch10.addConstraint(Sketcher.Constraint("Equal", 4, 13))
sketch10.addConstraint(Sketcher.Constraint("Equal", 9, 14))
sketch10.addConstraint(Sketcher.Constraint("Equal", 13, 16))
sketch10.addConstraint(Sketcher.Constraint("Equal", 14, 19))
sketch10.addConstraint(Sketcher.Constraint("PointOnObject", 17, 2, -1))
sketch10.addConstraint(Sketcher.Constraint("Horizontal", 9, 3, 13, 3))
sketch10.addConstraint(Sketcher.Constraint("Horizontal", 8, 3, 16, 3))
sketch10.addConstraint(Sketcher.Constraint("Horizontal", 7, 2, 10, 2))
sketch10.addConstraint(Sketcher.Constraint("Vertical", 14, 3, 16, 3))
sketch10.addConstraint(Sketcher.Constraint("Equal", 1, 5))
sketch10.addConstraint(Sketcher.Constraint("Radius", 2, Q("2 mm")))
sketch10.addConstraint(Sketcher.Constraint("Diameter", 8, Q("2.3 mm")))
sketch10.addConstraint(Sketcher.Constraint("DistanceX", 0, 1, 0, 2, Q("3 mm")))
sketch10.addConstraint(Sketcher.Constraint("DistanceY", 3, 2, 3, 1, Q("22 mm")))
sketch10.addConstraint(Sketcher.Constraint("DistanceY", 1, 1, 1, 2, Q("2.9 mm")))
sketch10.addConstraint(Sketcher.Constraint("DistanceX", -1, 1, 13, 3, Q("13 mm")))
sketch10.setExpression("Constraints[45]", "Params.sketch10_radius")
sketch10.setExpression("Constraints[46]", "Params.sketch10_diameter")
sketch10.setExpression("Constraints[47]", "Params.sketch10_width")
sketch10.setExpression("Constraints[48]", "Params.sketch10_height")
sketch10.setExpression("Constraints[49]", "Params.sketch10_height2")
pad6 = doc.addObject("PartDesign::Pad", "Pad005")
body.addObject(pad6)
pad6.Profile = sketch10
pad6.setExpression("Length", "Params.pad6_length")
pad6.Reversed = True

# Sketch on YZ plane
sketch11 = doc.addObject("Sketcher::SketchObject", "Sketch010")
body.addObject(sketch11)
sketch11.AttachmentSupport = (doc.YZ_Plane, [""])
sketch11.MapMode = "FlatFace"
sketch11.addGeometry(Part.LineSegment(Vector(17.2, 16.2, 0), Vector(17.2, 8.6, 0)), False)
sketch11.addGeometry(Part.LineSegment(Vector(17.2, 8.6, 0), Vector(15.2, 8.6, 0)), False)
sketch11.addGeometry(Part.LineSegment(Vector(15.2, 8.6, 0), Vector(15.2, 13.2, 0)), False)
sketch11.addGeometry(Part.ArcOfCircle(Part.Circle(Vector(14.2, 13.2, 0), Vector(0, 0, 1), 1), math.radians(0), math.radians(90)), False)
sketch11.addGeometry(Part.LineSegment(Vector(14.2, 14.2, 0), Vector(6, 14.2, 0)), False)
sketch11.addGeometry(Part.ArcOfCircle(Part.Circle(Vector(6, 13.2, 0), Vector(0, 0, 1), 1), math.radians(90), math.radians(180)), False)
sketch11.addGeometry(Part.LineSegment(Vector(5, 13.2, 0), Vector(5, 3, 0)), False)
sketch11.addGeometry(Part.ArcOfCircle(Part.Circle(Vector(6, 3, 0), Vector(0, 0, 1), 1), math.radians(-180), math.radians(-90)), False)
sketch11.addGeometry(Part.LineSegment(Vector(6, 2, 0), Vector(14.2, 2, 0)), False)
sketch11.addGeometry(Part.ArcOfCircle(Part.Circle(Vector(14.2, 3, 0), Vector(0, 0, 1), 1), math.radians(-90), math.radians(0)), False)
sketch11.addGeometry(Part.LineSegment(Vector(15.2, 3, 0), Vector(15.2, 7.6, 0)), False)
sketch11.addGeometry(Part.LineSegment(Vector(15.2, 7.6, 0), Vector(17.2, 7.6, 0)), False)
sketch11.addGeometry(Part.LineSegment(Vector(17.2, 7.6, 0), Vector(17.2, 0, 0)), False)
sketch11.addGeometry(Part.LineSegment(Vector(17.2, 0, 0), Vector(1, 0, 0)), False)
sketch11.addGeometry(Part.LineSegment(Vector(1, 0, 0), Vector(1, 16.2, 0)), False)
sketch11.addGeometry(Part.LineSegment(Vector(1, 16.2, 0), Vector(17.2, 16.2, 0)), False)
sketch11.addConstraint(Sketcher.Constraint("Coincident", 0, 2, 1, 1))
sketch11.addConstraint(Sketcher.Constraint("Coincident", 1, 2, 2, 1))
sketch11.addConstraint(Sketcher.Constraint("Tangent", 2, 2, 3, 1))
sketch11.addConstraint(Sketcher.Constraint("Tangent", 3, 2, 4, 1))
sketch11.addConstraint(Sketcher.Constraint("Tangent", 4, 2, 5, 1))
sketch11.addConstraint(Sketcher.Constraint("Tangent", 5, 2, 6, 1))
sketch11.addConstraint(Sketcher.Constraint("Tangent", 6, 2, 7, 1))
sketch11.addConstraint(Sketcher.Constraint("Tangent", 7, 2, 8, 1))
sketch11.addConstraint(Sketcher.Constraint("Tangent", 8, 2, 9, 1))
sketch11.addConstraint(Sketcher.Constraint("Tangent", 9, 2, 10, 1))
sketch11.addConstraint(Sketcher.Constraint("Coincident", 10, 2, 11, 1))
sketch11.addConstraint(Sketcher.Constraint("Coincident", 11, 2, 12, 1))
sketch11.addConstraint(Sketcher.Constraint("Coincident", 12, 2, 13, 1))
sketch11.addConstraint(Sketcher.Constraint("Coincident", 13, 2, 14, 1))
sketch11.addConstraint(Sketcher.Constraint("Coincident", 14, 2, 15, 1))
sketch11.addConstraint(Sketcher.Constraint("Coincident", 15, 2, 0, 1))
sketch11.addConstraint(Sketcher.Constraint("Vertical", 0))
sketch11.addConstraint(Sketcher.Constraint("Horizontal", 1))
sketch11.addConstraint(Sketcher.Constraint("Vertical", 2))
sketch11.addConstraint(Sketcher.Constraint("Horizontal", 4))
sketch11.addConstraint(Sketcher.Constraint("Vertical", 6))
sketch11.addConstraint(Sketcher.Constraint("Horizontal", 8))
sketch11.addConstraint(Sketcher.Constraint("Vertical", 10))
sketch11.addConstraint(Sketcher.Constraint("Horizontal", 11))
sketch11.addConstraint(Sketcher.Constraint("Vertical", 12))
sketch11.addConstraint(Sketcher.Constraint("Horizontal", 13))
sketch11.addConstraint(Sketcher.Constraint("Vertical", 14))
sketch11.addConstraint(Sketcher.Constraint("Horizontal", 15))
sketch11.addConstraint(Sketcher.Constraint("Equal", 3, 5))
sketch11.addConstraint(Sketcher.Constraint("Equal", 5, 7))
sketch11.addConstraint(Sketcher.Constraint("Equal", 7, 9))
sketch11.addConstraint(Sketcher.Constraint("PointOnObject", 12, 2, -1))
sketch11.addConstraint(Sketcher.Constraint("Vertical", 3, 3, 9, 3))
sketch11.addConstraint(Sketcher.Constraint("Vertical", 0, 2, 11, 2))
sketch11.addConstraint(Sketcher.Constraint("Equal", 2, 10))
sketch11.addConstraint(Sketcher.Constraint("Equal", 0, 12))
sketch11.addConstraint(Sketcher.Constraint("Equal", 15, 14))
sketch11.addConstraint(Sketcher.Constraint("Radius", 3, Q("1 mm")))
sketch11.addConstraint(Sketcher.Constraint("DistanceX", 1, 2, 1, 1, Q("2 mm")))
sketch11.addConstraint(Sketcher.Constraint("DistanceX", 4, 2, 4, 1, Q("8.2 mm")))
sketch11.addConstraint(Sketcher.Constraint("DistanceX", 13, 2, 13, 1, Q("16.2 mm")))
sketch11.addConstraint(Sketcher.Constraint("DistanceY", 0, 2, 0, 1, Q("7.6 mm")))
sketch11.addConstraint(Sketcher.Constraint("DistanceY", 2, 1, 2, 2, Q("4.6 mm")))
sketch11.addConstraint(Sketcher.Constraint("DistanceX", -1, 1, 5, 3, Q("6 mm")))
sketch11.setExpression("Constraints[37]", "Params.sketch11_radius")
sketch11.setExpression("Constraints[38]", "Params.sketch11_width")
sketch11.setExpression("Constraints[39]", "Params.sketch11_width2")
sketch11.setExpression("Constraints[40]", "Params.sketch11_width3")
sketch11.setExpression("Constraints[41]", "Params.sketch11_height")
pad7 = doc.addObject("PartDesign::Pad", "Pad006")
body.addObject(pad7)
pad7.Profile = sketch11
pad7.setExpression("Length", "Params.pad7_length")
pad7.Reversed = True

doc.recompute()
